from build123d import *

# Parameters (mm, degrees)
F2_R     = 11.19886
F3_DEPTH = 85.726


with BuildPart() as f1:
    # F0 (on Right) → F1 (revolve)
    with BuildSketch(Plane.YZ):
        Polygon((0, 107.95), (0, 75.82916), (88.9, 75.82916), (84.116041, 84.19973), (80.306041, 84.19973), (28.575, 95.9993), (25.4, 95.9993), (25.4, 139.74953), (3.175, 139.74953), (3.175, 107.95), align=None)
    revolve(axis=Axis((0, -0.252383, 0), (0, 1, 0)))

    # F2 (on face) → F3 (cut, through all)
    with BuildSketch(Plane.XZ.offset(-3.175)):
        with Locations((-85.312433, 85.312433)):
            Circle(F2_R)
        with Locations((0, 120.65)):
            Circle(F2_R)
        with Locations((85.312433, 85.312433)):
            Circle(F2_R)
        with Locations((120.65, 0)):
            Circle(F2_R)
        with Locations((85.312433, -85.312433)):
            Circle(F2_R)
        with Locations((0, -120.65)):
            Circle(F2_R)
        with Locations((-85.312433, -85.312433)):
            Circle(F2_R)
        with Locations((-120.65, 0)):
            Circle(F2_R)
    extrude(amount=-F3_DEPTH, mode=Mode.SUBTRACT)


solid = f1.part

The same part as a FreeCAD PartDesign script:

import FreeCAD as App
import Part
import Sketcher
from FreeCAD import Vector
Q = App.Units.Quantity

doc = App.newDocument("Part")
body = doc.addObject("PartDesign::Body", "Body")

# Sketch on YZ plane
sketch1 = body.newObject("Sketcher::SketchObject", "Sketch")
sketch1.AttachmentSupport = (doc.getObject("YZ_Plane"), [""])
sketch1.MapMode = "FlatFace"
sketch1.addGeometry(Part.LineSegment(Vector(0, 107.95, 0), Vector(0, 75.82916, 0)), False)
sketch1.addGeometry(Part.LineSegment(Vector(0, 75.82916, 0), Vector(88.9, 75.82916, 0)), False)
sketch1.addGeometry(Part.LineSegment(Vector(88.9, 75.82916, 0), Vector(84.116041, 84.19973, 0)), False)
sketch1.addGeometry(Part.LineSegment(Vector(84.116041, 84.19973, 0), Vector(80.306041, 84.19973, 0)), False)
sketch1.addGeometry(Part.LineSegment(Vector(80.306041, 84.19973, 0), Vector(28.575, 95.9993, 0)), False)
sketch1.addGeometry(Part.LineSegment(Vector(28.575, 95.9993, 0), Vector(25.4, 95.9993, 0)), False)
sketch1.addGeometry(Part.LineSegment(Vector(25.4, 95.9993, 0), Vector(25.4, 139.74953, 0)), False)
sketch1.addGeometry(Part.LineSegment(Vector(25.4, 139.74953, 0), Vector(3.175, 139.74953, 0)), False)
sketch1.addGeometry(Part.LineSegment(Vector(3.175, 139.74953, 0), Vector(3.175, 107.95, 0)), False)
sketch1.addGeometry(Part.LineSegment(Vector(3.175, 107.95, 0), Vector(0, 107.95, 0)), False)
sketch1.addConstraint(Sketcher.Constraint("Coincident", 0, 2, 1, 1))
sketch1.addConstraint(Sketcher.Constraint("Coincident", 1, 2, 2, 1))
sketch1.addConstraint(Sketcher.Constraint("Coincident", 2, 2, 3, 1))
sketch1.addConstraint(Sketcher.Constraint("Coincident", 3, 2, 4, 1))
sketch1.addConstraint(Sketcher.Constraint("Coincident", 4, 2, 5, 1))
sketch1.addConstraint(Sketcher.Constraint("Coincident", 5, 2, 6, 1))
sketch1.addConstraint(Sketcher.Constraint("Coincident", 6, 2, 7, 1))
sketch1.addConstraint(Sketcher.Constraint("Coincident", 7, 2, 8, 1))
sketch1.addConstraint(Sketcher.Constraint("Coincident", 8, 2, 9, 1))
sketch1.addConstraint(Sketcher.Constraint("Coincident", 9, 2, 0, 1))
sketch1.addConstraint(Sketcher.Constraint("Vertical", 0))
sketch1.addConstraint(Sketcher.Constraint("Horizontal", 1))
sketch1.addConstraint(Sketcher.Constraint("Horizontal", 3))
sketch1.addConstraint(Sketcher.Constraint("Horizontal", 5))
sketch1.addConstraint(Sketcher.Constraint("Vertical", 6))
sketch1.addConstraint(Sketcher.Constraint("Horizontal", 7))
sketch1.addConstraint(Sketcher.Constraint("Vertical", 8))
sketch1.addConstraint(Sketcher.Constraint("Horizontal", 9))
sketch1.addConstraint(Sketcher.Constraint("PointOnObject", 0, 2, -2))
sketch1.addConstraint(Sketcher.Constraint("Equal", 5, 9))
sketch1.addConstraint(Sketcher.Constraint("DistanceX", 1, 1, 1, 2, Q("3.5 in")))
sketch1.addConstraint(Sketcher.Constraint("DistanceX", -1, 1, 5, 2, Q("1 in")))
sketch1.addConstraint(Sketcher.Constraint("DistanceX", 3, 2, 3, 1, Q("0.15 in")))
sketch1.addConstraint(Sketcher.Constraint("DistanceX", 5, 2, 5, 1, Q("0.125 in")))
sketch1.addConstraint(Sketcher.Constraint("DistanceY", -1, 1, 8, 2, Q("4.25 in")))
sketch1.addConstraint(Sketcher.Constraint("DistanceY", 0, 2, 0, 1, Q("1.2646 in")))
sketch1.addConstraint(Sketcher.Constraint("DistanceY", 3, 2, 6, 2, Q("2.187 in")))
sketch1.addConstraint(Sketcher.Constraint("DistanceY", -1, 1, 4, 2, Q("3.7795 in")))
sketch1.addConstraint(Sketcher.Constraint("Distance", 2, 9.641198))
sketch1.addConstraint(Sketcher.Constraint("DistanceY", 6, 1, 6, 2, 43.75023))
revolution = body.newObject("PartDesign::Revolution", "Revolution")
revolution.Profile = sketch1
revolution.ReferenceAxis = (sketch1, ["H_Axis"])
revolution.Angle = 360

# Sketch on XZ plane
sketch2 = body.newObject("Sketcher::SketchObject", "Sketch001")
sketch2.AttachmentSupport = (doc.getObject("XZ_Plane"), [""])
sketch2.MapMode = "FlatFace"
sketch2.AttachmentOffset = App.Placement(Vector(0, 0, -0.125 * 25.4), App.Rotation())
sketch2.addGeometry(Part.Circle(Vector(-85.312433, 85.312433, 0), Vector(0, 0, 1), 11.19886), False)
sketch2.addGeometry(Part.Circle(Vector(0, 120.65, 0), Vector(0, 0, 1), 11.19886), False)
sketch2.addGeometry(Part.Circle(Vector(85.312433, 85.312433, 0), Vector(0, 0, 1), 11.19886), False)
sketch2.addGeometry(Part.Circle(Vector(120.65, 0, 0), Vector(0, 0, 1), 11.19886), False)
sketch2.addGeometry(Part.Circle(Vector(85.312433, -85.312433, 0), Vector(0, 0, 1), 11.19886), False)
sketch2.addGeometry(Part.Circle(Vector(0, -120.65, 0), Vector(0, 0, 1), 11.19886), False)
sketch2.addGeometry(Part.Circle(Vector(-85.312433, -85.312433, 0), Vector(0, 0, 1), 11.19886), False)
sketch2.addGeometry(Part.Circle(Vector(-120.65, 0, 0), Vector(0, 0, 1), 11.19886), False)
sketch2.addConstraint(Sketcher.Constraint("Equal", 0, 1))
sketch2.addConstraint(Sketcher.Constraint("Equal", 1, 2))
sketch2.addConstraint(Sketcher.Constraint("Equal", 2, 3))
sketch2.addConstraint(Sketcher.Constraint("Equal", 3, 4))
sketch2.addConstraint(Sketcher.Constraint("Equal", 4, 5))
sketch2.addConstraint(Sketcher.Constraint("Equal", 5, 6))
sketch2.addConstraint(Sketcher.Constraint("Equal", 6, 7))
sketch2.addConstraint(Sketcher.Constraint("Symmetric", 0, 3, 4, 3, -1, 1))
sketch2.addConstraint(Sketcher.Constraint("Symmetric", 1, 3, 5, 3, -1, 1))
sketch2.addConstraint(Sketcher.Constraint("Symmetric", 2, 3, 6, 3, -1, 1))
sketch2.addConstraint(Sketcher.Constraint("Symmetric", 3, 3, 7, 3, -1, 1))
sketch2.addConstraint(Sketcher.Constraint("Symmetric", 0, 3, 2, 3, -2))
sketch2.addConstraint(Sketcher.Constraint("PointOnObject", 1, 3, -2))
sketch2.addConstraint(Sketcher.Constraint("PointOnObject", 3, 3, -1))
sketch2.addConstraint(Sketcher.Constraint("Diameter", 0, Q("0.8818 in")))
sketch2.addConstraint(Sketcher.Constraint("DistanceY", 5, 3, 1, 3, Q("9.5 in")))
sketch2.addConstraint(Sketcher.Constraint("DistanceX", -1, 1, 3, 3, Q("4.75 in")))
sketch2.addConstraint(Sketcher.Constraint("DistanceX", 0, 3, -1, 1, 85.312433))
sketch2.addConstraint(Sketcher.Constraint("DistanceY", -1, 1, 0, 3, 85.312433))
pocket1 = body.newObject("PartDesign::Pocket", "Pocket")
pocket1.Profile = sketch2
pocket1.Type = "ThroughAll"

doc.recompute()
